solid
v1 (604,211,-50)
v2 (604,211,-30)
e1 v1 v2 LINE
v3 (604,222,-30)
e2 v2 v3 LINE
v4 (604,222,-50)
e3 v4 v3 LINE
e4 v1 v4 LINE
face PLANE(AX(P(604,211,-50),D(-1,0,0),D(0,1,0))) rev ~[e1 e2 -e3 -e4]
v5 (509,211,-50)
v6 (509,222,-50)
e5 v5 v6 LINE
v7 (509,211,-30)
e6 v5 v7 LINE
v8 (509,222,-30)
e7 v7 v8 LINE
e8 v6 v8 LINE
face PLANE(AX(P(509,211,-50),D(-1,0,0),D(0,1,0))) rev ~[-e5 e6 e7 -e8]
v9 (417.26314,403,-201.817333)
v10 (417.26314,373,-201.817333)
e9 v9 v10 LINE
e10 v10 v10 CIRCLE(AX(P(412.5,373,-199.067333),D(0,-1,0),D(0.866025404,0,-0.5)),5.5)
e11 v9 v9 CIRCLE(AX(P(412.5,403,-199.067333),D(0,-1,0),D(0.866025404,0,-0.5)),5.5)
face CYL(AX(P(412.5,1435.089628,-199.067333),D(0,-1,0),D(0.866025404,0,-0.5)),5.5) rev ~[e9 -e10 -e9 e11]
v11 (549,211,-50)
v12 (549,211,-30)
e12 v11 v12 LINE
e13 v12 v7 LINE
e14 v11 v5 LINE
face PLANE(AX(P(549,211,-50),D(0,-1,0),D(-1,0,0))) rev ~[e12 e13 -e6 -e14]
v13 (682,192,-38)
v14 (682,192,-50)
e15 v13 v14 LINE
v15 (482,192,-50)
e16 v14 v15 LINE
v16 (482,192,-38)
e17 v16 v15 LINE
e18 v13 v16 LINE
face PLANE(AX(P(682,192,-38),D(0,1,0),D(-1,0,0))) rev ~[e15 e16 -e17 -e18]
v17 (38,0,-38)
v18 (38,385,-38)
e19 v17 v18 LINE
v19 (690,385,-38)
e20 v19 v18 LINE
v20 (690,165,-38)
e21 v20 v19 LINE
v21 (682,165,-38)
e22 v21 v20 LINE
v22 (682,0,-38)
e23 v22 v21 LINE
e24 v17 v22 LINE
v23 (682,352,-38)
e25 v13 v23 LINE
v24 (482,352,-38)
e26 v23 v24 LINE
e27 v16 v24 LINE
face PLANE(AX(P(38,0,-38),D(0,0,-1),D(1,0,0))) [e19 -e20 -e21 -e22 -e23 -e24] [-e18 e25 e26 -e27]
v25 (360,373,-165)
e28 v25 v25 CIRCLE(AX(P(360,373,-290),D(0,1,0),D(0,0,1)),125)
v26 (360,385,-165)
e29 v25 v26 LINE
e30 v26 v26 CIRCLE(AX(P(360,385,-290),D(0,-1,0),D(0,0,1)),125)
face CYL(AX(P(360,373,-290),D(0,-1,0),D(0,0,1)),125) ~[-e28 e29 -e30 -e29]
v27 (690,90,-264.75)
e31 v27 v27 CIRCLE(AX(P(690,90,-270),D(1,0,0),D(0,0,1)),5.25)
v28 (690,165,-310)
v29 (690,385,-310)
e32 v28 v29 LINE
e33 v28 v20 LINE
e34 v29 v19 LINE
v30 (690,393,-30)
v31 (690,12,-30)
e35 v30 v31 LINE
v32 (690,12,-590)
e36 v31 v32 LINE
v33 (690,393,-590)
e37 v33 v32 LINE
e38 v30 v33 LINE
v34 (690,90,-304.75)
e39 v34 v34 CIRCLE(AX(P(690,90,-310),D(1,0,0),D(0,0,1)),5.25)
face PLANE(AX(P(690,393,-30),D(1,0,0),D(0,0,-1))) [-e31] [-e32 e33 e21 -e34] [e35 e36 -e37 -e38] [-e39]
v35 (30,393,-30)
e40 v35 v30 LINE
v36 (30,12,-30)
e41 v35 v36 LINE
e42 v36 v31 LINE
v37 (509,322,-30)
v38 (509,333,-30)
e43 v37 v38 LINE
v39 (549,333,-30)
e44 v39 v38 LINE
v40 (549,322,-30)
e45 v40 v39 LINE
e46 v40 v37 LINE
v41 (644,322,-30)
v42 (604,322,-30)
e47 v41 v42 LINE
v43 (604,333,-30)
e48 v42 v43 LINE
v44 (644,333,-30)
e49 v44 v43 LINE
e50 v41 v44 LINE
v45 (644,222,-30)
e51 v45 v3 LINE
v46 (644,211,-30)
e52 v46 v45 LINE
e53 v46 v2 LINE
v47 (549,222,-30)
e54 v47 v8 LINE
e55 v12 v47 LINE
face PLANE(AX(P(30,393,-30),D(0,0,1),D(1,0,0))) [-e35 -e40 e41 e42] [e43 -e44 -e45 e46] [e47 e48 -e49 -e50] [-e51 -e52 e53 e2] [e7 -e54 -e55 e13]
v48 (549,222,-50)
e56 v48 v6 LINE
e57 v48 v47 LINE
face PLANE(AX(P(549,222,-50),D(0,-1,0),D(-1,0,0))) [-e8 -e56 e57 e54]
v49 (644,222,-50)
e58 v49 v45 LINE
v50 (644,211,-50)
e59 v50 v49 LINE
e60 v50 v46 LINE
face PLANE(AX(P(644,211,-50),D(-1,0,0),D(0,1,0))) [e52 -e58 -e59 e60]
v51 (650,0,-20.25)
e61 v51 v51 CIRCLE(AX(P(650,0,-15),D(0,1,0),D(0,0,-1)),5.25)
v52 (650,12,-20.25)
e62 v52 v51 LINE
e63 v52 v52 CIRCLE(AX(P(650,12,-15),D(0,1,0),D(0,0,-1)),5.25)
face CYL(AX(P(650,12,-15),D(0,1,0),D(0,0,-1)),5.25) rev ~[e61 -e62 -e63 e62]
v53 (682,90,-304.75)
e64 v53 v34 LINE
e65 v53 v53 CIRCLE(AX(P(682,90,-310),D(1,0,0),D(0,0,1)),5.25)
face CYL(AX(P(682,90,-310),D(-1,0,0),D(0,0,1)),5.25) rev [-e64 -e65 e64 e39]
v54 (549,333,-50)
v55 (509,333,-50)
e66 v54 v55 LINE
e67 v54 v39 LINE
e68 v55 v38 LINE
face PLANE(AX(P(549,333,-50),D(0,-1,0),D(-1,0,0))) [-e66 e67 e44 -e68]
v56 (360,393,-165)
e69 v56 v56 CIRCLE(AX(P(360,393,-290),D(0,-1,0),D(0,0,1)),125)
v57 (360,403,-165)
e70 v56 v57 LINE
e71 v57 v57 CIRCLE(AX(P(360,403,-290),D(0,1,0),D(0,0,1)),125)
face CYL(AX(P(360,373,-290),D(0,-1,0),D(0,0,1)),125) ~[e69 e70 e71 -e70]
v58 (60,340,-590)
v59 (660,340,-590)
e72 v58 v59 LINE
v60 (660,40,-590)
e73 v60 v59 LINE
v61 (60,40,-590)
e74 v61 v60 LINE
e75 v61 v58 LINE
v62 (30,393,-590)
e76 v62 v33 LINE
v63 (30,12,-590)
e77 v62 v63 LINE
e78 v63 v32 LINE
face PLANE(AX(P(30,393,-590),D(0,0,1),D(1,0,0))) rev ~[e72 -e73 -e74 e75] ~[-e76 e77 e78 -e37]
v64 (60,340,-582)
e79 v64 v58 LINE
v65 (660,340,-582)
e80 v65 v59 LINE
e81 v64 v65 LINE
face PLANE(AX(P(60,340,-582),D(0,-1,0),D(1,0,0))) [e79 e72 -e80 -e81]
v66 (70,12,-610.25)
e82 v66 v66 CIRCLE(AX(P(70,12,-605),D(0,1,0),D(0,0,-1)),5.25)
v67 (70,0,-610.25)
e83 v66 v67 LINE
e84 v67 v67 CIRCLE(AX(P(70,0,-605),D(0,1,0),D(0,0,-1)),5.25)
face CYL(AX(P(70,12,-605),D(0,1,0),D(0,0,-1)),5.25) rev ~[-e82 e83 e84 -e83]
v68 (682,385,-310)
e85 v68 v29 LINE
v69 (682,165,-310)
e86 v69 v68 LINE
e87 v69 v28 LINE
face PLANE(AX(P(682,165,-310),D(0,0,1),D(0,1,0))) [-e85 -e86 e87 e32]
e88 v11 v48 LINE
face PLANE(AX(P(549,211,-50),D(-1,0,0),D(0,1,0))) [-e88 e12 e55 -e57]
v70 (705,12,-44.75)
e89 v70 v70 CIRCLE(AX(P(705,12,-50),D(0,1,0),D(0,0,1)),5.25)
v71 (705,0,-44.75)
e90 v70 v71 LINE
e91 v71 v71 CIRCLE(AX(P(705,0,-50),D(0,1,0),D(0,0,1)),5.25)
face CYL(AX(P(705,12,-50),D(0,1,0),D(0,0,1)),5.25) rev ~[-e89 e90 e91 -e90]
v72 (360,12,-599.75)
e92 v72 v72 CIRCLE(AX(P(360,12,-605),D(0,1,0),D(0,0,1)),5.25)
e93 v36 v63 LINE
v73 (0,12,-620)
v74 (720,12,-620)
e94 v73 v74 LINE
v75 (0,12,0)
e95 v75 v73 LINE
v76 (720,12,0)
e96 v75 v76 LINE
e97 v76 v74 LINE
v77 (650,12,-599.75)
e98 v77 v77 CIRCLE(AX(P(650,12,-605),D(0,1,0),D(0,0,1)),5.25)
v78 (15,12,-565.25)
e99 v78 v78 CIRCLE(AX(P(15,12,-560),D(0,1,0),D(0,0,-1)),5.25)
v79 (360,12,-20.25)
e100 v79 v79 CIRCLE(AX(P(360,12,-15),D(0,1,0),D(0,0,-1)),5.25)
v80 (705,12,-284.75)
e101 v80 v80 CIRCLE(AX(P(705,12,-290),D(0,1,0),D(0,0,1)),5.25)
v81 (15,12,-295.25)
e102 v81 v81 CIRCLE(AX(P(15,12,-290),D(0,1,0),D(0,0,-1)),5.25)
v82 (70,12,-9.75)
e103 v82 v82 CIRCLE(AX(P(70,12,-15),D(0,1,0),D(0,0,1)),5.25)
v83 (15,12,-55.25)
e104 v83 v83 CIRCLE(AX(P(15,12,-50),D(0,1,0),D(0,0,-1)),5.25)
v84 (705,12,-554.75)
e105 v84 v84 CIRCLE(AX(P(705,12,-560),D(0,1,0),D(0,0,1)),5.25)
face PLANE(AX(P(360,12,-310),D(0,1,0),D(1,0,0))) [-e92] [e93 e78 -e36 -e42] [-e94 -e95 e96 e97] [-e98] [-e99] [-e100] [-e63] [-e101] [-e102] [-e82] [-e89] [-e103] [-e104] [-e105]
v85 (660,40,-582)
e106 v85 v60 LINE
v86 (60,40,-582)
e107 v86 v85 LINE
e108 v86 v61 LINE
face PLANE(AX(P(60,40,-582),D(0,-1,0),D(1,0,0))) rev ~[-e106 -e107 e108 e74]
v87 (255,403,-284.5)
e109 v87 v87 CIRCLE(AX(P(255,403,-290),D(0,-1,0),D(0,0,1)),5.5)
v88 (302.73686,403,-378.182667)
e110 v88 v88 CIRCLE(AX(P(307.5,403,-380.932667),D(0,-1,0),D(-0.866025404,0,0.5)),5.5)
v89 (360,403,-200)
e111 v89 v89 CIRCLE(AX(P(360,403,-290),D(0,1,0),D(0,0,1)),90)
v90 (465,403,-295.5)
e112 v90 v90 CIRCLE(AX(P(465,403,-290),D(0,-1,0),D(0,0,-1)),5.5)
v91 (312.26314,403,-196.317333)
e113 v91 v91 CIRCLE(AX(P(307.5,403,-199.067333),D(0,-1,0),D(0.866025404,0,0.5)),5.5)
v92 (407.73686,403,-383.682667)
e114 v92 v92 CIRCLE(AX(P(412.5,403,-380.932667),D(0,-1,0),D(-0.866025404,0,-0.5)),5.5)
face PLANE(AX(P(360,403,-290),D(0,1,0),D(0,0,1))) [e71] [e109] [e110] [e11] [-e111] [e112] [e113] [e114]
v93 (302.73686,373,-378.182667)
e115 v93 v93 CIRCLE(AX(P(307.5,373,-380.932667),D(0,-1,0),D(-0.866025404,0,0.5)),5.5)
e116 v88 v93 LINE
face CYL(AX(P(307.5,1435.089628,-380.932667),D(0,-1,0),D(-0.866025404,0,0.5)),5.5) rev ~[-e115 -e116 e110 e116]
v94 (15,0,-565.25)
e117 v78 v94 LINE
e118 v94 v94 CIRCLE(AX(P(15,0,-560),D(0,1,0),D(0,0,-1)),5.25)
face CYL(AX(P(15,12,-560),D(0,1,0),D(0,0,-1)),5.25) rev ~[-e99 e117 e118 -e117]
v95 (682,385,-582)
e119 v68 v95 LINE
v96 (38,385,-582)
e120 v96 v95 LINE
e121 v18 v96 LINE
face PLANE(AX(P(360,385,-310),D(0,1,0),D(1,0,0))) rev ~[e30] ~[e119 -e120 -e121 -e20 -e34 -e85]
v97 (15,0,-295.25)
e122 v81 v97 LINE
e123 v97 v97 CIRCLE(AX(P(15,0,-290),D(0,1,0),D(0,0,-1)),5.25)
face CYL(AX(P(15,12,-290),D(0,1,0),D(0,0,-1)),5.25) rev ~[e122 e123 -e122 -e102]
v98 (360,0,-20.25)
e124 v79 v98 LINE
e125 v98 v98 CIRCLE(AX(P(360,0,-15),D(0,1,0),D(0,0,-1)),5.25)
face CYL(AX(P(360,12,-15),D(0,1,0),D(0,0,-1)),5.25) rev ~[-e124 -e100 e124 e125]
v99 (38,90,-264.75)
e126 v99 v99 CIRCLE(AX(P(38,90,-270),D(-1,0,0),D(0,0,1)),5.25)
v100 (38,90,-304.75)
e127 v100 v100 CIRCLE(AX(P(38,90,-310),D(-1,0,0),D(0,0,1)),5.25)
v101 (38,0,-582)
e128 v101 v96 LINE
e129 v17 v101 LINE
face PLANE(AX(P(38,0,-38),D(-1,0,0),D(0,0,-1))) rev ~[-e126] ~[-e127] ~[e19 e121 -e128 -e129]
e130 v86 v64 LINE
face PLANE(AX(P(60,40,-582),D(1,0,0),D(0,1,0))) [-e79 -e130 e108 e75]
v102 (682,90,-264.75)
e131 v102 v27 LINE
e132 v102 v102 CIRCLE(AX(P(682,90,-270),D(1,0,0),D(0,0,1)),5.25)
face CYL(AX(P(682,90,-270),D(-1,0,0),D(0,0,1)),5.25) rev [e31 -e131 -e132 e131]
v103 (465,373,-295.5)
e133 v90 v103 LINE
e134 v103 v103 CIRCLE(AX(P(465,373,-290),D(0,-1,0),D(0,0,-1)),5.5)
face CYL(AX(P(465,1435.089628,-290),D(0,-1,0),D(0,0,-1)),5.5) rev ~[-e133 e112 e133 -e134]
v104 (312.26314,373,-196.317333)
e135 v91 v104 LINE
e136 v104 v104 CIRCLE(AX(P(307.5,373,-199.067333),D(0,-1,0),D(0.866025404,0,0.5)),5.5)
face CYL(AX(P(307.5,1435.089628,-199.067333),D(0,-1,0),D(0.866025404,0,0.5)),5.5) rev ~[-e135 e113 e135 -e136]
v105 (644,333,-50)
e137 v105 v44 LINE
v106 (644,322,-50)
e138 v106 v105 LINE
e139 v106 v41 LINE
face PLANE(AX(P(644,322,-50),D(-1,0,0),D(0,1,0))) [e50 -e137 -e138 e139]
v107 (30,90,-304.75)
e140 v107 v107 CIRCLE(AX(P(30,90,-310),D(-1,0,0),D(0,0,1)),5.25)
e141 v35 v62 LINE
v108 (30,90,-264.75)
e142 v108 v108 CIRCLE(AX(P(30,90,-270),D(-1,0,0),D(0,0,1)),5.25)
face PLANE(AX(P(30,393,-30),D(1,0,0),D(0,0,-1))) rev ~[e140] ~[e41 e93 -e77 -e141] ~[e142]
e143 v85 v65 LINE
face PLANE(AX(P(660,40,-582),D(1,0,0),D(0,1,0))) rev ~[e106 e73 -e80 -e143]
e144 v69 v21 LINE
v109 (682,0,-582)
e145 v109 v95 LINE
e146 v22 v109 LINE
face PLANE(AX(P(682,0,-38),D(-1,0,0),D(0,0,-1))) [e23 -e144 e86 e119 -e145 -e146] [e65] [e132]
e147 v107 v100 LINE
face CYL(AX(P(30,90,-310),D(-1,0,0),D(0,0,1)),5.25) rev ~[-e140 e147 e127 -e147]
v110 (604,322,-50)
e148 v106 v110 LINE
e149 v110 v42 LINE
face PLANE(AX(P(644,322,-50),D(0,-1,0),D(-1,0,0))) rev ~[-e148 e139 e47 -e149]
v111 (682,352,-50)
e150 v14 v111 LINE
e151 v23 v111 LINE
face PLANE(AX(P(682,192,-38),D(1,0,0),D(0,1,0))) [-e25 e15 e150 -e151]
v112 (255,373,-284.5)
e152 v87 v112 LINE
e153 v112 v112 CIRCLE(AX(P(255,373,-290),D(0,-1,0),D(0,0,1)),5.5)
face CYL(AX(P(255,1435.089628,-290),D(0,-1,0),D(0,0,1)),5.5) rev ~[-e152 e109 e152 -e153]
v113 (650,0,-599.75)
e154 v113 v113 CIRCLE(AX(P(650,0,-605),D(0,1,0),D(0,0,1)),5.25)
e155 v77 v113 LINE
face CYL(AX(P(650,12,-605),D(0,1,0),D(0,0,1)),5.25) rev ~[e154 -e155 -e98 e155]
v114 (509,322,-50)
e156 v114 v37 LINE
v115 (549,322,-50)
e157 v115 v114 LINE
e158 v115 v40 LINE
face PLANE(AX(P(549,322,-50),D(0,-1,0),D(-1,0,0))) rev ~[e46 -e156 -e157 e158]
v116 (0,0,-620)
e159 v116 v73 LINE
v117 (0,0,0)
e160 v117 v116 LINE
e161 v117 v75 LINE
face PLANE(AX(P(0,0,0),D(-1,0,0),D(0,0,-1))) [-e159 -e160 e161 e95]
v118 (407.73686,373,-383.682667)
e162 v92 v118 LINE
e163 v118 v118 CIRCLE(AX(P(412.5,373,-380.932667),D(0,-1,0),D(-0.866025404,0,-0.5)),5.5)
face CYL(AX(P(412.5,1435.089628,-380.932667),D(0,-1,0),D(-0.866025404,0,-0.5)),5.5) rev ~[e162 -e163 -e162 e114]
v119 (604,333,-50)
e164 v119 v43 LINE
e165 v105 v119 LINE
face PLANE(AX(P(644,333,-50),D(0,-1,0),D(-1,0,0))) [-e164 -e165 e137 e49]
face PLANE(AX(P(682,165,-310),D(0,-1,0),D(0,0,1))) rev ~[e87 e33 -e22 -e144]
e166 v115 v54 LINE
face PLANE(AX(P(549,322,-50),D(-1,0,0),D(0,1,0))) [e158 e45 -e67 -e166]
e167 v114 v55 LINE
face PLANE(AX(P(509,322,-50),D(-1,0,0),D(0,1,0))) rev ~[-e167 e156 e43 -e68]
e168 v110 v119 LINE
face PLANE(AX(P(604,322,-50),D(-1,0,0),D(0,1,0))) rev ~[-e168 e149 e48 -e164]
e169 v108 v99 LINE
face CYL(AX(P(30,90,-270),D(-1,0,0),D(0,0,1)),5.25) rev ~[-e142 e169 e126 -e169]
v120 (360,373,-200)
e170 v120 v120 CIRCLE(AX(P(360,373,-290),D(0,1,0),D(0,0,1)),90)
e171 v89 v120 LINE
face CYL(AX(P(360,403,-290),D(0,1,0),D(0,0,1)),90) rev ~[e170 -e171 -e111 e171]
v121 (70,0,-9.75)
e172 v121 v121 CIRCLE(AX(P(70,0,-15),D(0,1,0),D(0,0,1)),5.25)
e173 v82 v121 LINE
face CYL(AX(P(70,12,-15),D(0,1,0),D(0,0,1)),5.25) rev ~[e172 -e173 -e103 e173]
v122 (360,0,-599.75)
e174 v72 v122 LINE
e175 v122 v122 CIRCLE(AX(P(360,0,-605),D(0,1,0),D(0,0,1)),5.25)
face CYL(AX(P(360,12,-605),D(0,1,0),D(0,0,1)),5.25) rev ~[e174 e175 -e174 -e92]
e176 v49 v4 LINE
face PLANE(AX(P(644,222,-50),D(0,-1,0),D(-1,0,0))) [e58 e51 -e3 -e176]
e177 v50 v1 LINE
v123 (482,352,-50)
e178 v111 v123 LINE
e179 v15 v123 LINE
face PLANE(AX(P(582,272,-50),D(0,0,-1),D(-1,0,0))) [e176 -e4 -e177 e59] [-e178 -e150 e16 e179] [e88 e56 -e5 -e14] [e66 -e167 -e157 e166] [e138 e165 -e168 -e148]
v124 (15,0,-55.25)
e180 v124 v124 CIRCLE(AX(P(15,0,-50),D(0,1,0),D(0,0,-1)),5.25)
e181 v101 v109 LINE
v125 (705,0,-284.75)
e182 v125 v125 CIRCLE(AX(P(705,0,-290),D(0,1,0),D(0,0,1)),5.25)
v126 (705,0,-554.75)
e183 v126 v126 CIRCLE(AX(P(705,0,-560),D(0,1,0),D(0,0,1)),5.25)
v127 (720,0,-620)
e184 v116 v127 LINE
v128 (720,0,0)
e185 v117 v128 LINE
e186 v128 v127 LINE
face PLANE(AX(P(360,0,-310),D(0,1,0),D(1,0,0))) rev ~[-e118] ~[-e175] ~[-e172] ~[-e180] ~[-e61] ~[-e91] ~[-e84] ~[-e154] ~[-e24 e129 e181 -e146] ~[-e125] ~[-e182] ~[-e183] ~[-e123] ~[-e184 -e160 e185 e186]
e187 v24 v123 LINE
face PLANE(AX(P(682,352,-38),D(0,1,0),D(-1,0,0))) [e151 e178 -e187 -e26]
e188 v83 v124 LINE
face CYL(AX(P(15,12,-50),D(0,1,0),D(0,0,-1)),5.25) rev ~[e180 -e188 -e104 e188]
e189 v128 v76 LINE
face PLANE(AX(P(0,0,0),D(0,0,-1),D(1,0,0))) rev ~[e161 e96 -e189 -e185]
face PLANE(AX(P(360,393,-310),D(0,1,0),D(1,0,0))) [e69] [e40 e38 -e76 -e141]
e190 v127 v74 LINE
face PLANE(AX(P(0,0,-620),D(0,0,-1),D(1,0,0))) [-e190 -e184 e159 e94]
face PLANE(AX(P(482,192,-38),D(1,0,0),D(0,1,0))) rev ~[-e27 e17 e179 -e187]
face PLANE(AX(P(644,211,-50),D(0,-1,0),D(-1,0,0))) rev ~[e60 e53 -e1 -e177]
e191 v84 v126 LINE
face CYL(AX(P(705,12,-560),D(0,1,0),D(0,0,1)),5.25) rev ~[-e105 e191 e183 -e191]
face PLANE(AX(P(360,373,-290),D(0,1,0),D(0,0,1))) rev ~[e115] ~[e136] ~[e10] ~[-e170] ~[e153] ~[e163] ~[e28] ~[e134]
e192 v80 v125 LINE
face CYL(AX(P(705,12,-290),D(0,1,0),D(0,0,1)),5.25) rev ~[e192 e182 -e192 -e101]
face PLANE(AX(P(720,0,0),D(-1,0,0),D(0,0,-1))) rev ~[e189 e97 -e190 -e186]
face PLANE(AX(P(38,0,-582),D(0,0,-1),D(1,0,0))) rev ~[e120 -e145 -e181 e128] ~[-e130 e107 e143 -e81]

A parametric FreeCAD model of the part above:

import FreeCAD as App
import Part
import Sketcher
from FreeCAD import Vector

doc = App.newDocument("Part")
body = doc.addObject("PartDesign::Body", "Body")

# Sketch on XZ plane
sketch1 = body.newObject("Sketcher::SketchObject", "Sketch")
sketch1.AttachmentSupport = (doc.getObject("XZ_Plane"), [""])
sketch1.MapMode = "FlatFace"
sketch1.addGeometry(Part.LineSegment(Vector(0, -620, 0), Vector(0, 0, 0)), False)
sketch1.addGeometry(Part.LineSegment(Vector(0, 0, 0), Vector(720, 0, 0)), False)
sketch1.addGeometry(Part.LineSegment(Vector(720, 0, 0), Vector(720, -620, 0)), False)
sketch1.addGeometry(Part.LineSegment(Vector(720, -620, 0), Vector(0, -620, 0)), False)
sketch1.addConstraint(Sketcher.Constraint("Coincident", 0, 2, 1, 1))
sketch1.addConstraint(Sketcher.Constraint("Coincident", 1, 2, 2, 1))
sketch1.addConstraint(Sketcher.Constraint("Coincident", 2, 2, 3, 1))
sketch1.addConstraint(Sketcher.Constraint("Coincident", 3, 2, 0, 1))
sketch1.addConstraint(Sketcher.Constraint("Vertical", 0))
sketch1.addConstraint(Sketcher.Constraint("Horizontal", 1))
sketch1.addConstraint(Sketcher.Constraint("Vertical", 2))
sketch1.addConstraint(Sketcher.Constraint("Horizontal", 3))
sketch1.addConstraint(Sketcher.Constraint("Coincident", 0, 2, -1, 1))
sketch1.addConstraint(Sketcher.Constraint("DistanceX", 1, 1, 1, 2, 720.0))
sketch1.addConstraint(Sketcher.Constraint("DistanceY", 0, 1, 0, 2, 620.0))
pad1 = body.newObject("PartDesign::Pad", "Pad")
pad1.Profile = sketch1
pad1.Length = 393
pad1.Reversed = True

# Sketch on XZ plane
sketch2 = body.newObject("Sketcher::SketchObject", "Sketch001")
sketch2.AttachmentSupport = (doc.getObject("XZ_Plane"), [""])
sketch2.MapMode = "FlatFace"
sketch2.AttachmentOffset = App.Placement(Vector(0, 0, -393), App.Rotation())
sketch2.addGeometry(Part.LineSegment(Vector(0, -620, 0), Vector(0, 0, 0)), False)
sketch2.addGeometry(Part.LineSegment(Vector(0, 0, 0), Vector(720, 0, 0)), False)
sketch2.addGeometry(Part.LineSegment(Vector(720, 0, 0), Vector(720, -620, 0)), False)
sketch2.addGeometry(Part.LineSegment(Vector(720, -620, 0), Vector(0, -620, 0)), False)
sketch2.addGeometry(Part.LineSegment(Vector(690, -30, 0), Vector(30, -30, 0)), False)
sketch2.addGeometry(Part.LineSegment(Vector(30, -30, 0), Vector(30, -590, 0)), False)
sketch2.addGeometry(Part.LineSegment(Vector(30, -590, 0), Vector(690, -590, 0)), False)
sketch2.addGeometry(Part.LineSegment(Vector(690, -590, 0), Vector(690, -30, 0)), False)
sketch2.addConstraint(Sketcher.Constraint("Coincident", 0, 2, 1, 1))
sketch2.addConstraint(Sketcher.Constraint("Coincident", 1, 2, 2, 1))
sketch2.addConstraint(Sketcher.Constraint("Coincident", 2, 2, 3, 1))
sketch2.addConstraint(Sketcher.Constraint("Coincident", 3, 2, 0, 1))
sketch2.addConstraint(Sketcher.Constraint("Coincident", 4, 2, 5, 1))
sketch2.addConstraint(Sketcher.Constraint("Coincident", 5, 2, 6, 1))
sketch2.addConstraint(Sketcher.Constraint("Coincident", 6, 2, 7, 1))
sketch2.addConstraint(Sketcher.Constraint("Coincident", 7, 2, 4, 1))
sketch2.addConstraint(Sketcher.Constraint("Vertical", 0))
sketch2.addConstraint(Sketcher.Constraint("Horizontal", 1))
sketch2.addConstraint(Sketcher.Constraint("Vertical", 2))
sketch2.addConstraint(Sketcher.Constraint("Horizontal", 3))
sketch2.addConstraint(Sketcher.Constraint("Horizontal", 4))
sketch2.addConstraint(Sketcher.Constraint("Vertical", 5))
sketch2.addConstraint(Sketcher.Constraint("Horizontal", 6))
sketch2.addConstraint(Sketcher.Constraint("Vertical", 7))
sketch2.addConstraint(Sketcher.Constraint("Coincident", 0, 2, -1, 1))
sketch2.addConstraint(Sketcher.Constraint("DistanceX", 1, 1, 1, 2, 720.0))
sketch2.addConstraint(Sketcher.Constraint("DistanceX", 4, 2, 4, 1, 660.0))
sketch2.addConstraint(Sketcher.Constraint("DistanceY", 0, 1, 0, 2, 620.0))
sketch2.addConstraint(Sketcher.Constraint("DistanceY", 5, 2, 5, 1, 560.0))
sketch2.addConstraint(Sketcher.Constraint("DistanceX", -1, 1, 4, 2, 30.0))
sketch2.addConstraint(Sketcher.Constraint("DistanceY", 4, 2, -1, 1, 30.0))
pocket1 = body.newObject("PartDesign::Pocket", "Pocket")
pocket1.Profile = sketch2
pocket1.Length = 381
pocket1.Reversed = True

# Sketch on XZ plane
sketch3 = body.newObject("Sketcher::SketchObject", "Sketch002")
sketch3.AttachmentSupport = (doc.getObject("XZ_Plane"), [""])
sketch3.MapMode = "FlatFace"
sketch3.AttachmentOffset = App.Placement(Vector(0, 0, -12), App.Rotation())
sketch3.addGeometry(Part.Circle(Vector(360, -605, 0), Vector(0, 0, 1), 5), False)
sketch3.addGeometry(Part.Circle(Vector(650, -605, 0), Vector(0, 0, 1), 5), False)
sketch3.addGeometry(Part.Circle(Vector(70, -605, 0), Vector(0, 0, 1), 5), False)
sketch3.addGeometry(Part.Circle(Vector(650, -15, 0), Vector(0, 0, 1), 5), False)
sketch3.addGeometry(Part.Circle(Vector(360, -15, 0), Vector(0, 0, 1), 5), False)
sketch3.addGeometry(Part.Circle(Vector(70, -15, 0), Vector(0, 0, 1), 5), False)
sketch3.addGeometry(Part.Circle(Vector(705, -560, 0), Vector(0, 0, 1), 5), False)
sketch3.addGeometry(Part.Circle(Vector(705, -290, 0), Vector(0, 0, 1), 5), False)
sketch3.addGeometry(Part.Circle(Vector(705, -50, 0), Vector(0, 0, 1), 5), False)
sketch3.addGeometry(Part.Circle(Vector(15, -50, 0), Vector(0, 0, 1), 5), False)
sketch3.addGeometry(Part.Circle(Vector(15, -290, 0), Vector(0, 0, 1), 5), False)
sketch3.addGeometry(Part.Circle(Vector(15, -560, 0), Vector(0, 0, 1), 5), False)
sketch3.addConstraint(Sketcher.Constraint("Equal", 0, 1))
sketch3.addConstraint(Sketcher.Constraint("Equal", 1, 2))
sketch3.addConstraint(Sketcher.Constraint("Equal", 2, 3))
sketch3.addConstraint(Sketcher.Constraint("Equal", 3, 4))
sketch3.addConstraint(Sketcher.Constraint("Equal", 4, 5))
sketch3.addConstraint(Sketcher.Constraint("Equal", 5, 6))
sketch3.addConstraint(Sketcher.Constraint("Equal", 6, 7))
sketch3.addConstraint(Sketcher.Constraint("Equal", 7, 8))
sketch3.addConstraint(Sketcher.Constraint("Equal", 8, 9))
sketch3.addConstraint(Sketcher.Constraint("Equal", 9, 10))
sketch3.addConstraint(Sketcher.Constraint("Equal", 10, 11))
sketch3.addConstraint(Sketcher.Constraint("Horizontal", 0, 3, 1, 3))
sketch3.addConstraint(Sketcher.Constraint("Horizontal", 1, 3, 2, 3))
sketch3.addConstraint(Sketcher.Constraint("Horizontal", 3, 3, 4, 3))
sketch3.addConstraint(Sketcher.Constraint("Horizontal", 4, 3, 5, 3))
sketch3.addConstraint(Sketcher.Constraint("Horizontal", 8, 3, 9, 3))
sketch3.addConstraint(Sketcher.Constraint("Horizontal", 7, 3, 10, 3))
sketch3.addConstraint(Sketcher.Constraint("Horizontal", 6, 3, 11, 3))
sketch3.addConstraint(Sketcher.Constraint("Vertical", 1, 3, 3, 3))
sketch3.addConstraint(Sketcher.Constraint("Vertical", 0, 3, 4, 3))
sketch3.addConstraint(Sketcher.Constraint("Vertical", 2, 3, 5, 3))
sketch3.addConstraint(Sketcher.Constraint("Vertical", 6, 3, 7, 3))
sketch3.addConstraint(Sketcher.Constraint("Vertical", 7, 3, 8, 3))
sketch3.addConstraint(Sketcher.Constraint("Vertical", 9, 3, 10, 3))
sketch3.addConstraint(Sketcher.Constraint("Vertical", 10, 3, 11, 3))
sketch3.addConstraint(Sketcher.Constraint("Diameter", 0, 10.5))
sketch3.addConstraint(Sketcher.Constraint("DistanceX", -1, 1, 0, 3, 360.0))
sketch3.addConstraint(Sketcher.Constraint("DistanceY", 0, 3, -1, 1, 605.0))
sketch3.addConstraint(Sketcher.Constraint("DistanceX", -1, 1, 1, 3, 650.0))
sketch3.addConstraint(Sketcher.Constraint("DistanceX", -1, 1, 2, 3, 70.0))
sketch3.addConstraint(Sketcher.Constraint("DistanceY", 3, 3, -1, 1, 15.0))
sketch3.addConstraint(Sketcher.Constraint("DistanceX", -1, 1, 6, 3, 705.0))
sketch3.addConstraint(Sketcher.Constraint("DistanceY", 6, 3, -1, 1, 560.0))
sketch3.addConstraint(Sketcher.Constraint("DistanceY", 7, 3, -1, 1, 290.0))
sketch3.addConstraint(Sketcher.Constraint("DistanceY", 8, 3, -1, 1, 50.0))
sketch3.addConstraint(Sketcher.Constraint("DistanceX", -1, 1, 9, 3, 15.0))
pocket2 = body.newObject("PartDesign::Pocket", "Pocket001")
pocket2.Profile = sketch3
pocket2.Length = 12
pocket2.Reversed = True

# Sketch on XZ plane
sketch4 = body.newObject("Sketcher::SketchObject", "Sketch003")
sketch4.AttachmentSupport = (doc.getObject("XZ_Plane"), [""])
sketch4.MapMode = "FlatFace"
sketch4.addGeometry(Part.LineSegment(Vector(38, -582, 0), Vector(38, -38, 0)), False)
sketch4.addGeometry(Part.LineSegment(Vector(38, -38, 0), Vector(682, -38, 0)), False)
sketch4.addGeometry(Part.LineSegment(Vector(682, -38, 0), Vector(682, -582, 0)), False)
sketch4.addGeometry(Part.LineSegment(Vector(682, -582, 0), Vector(38, -582, 0)), False)
sketch4.addConstraint(Sketcher.Constraint("Coincident", 0, 2, 1, 1))
sketch4.addConstraint(Sketcher.Constraint("Coincident", 1, 2, 2, 1))
sketch4.addConstraint(Sketcher.Constraint("Coincident", 2, 2, 3, 1))
sketch4.addConstraint(Sketcher.Constraint("Coincident", 3, 2, 0, 1))
sketch4.addConstraint(Sketcher.Constraint("Vertical", 0))
sketch4.addConstraint(Sketcher.Constraint("Horizontal", 1))
sketch4.addConstraint(Sketcher.Constraint("Vertical", 2))
sketch4.addConstraint(Sketcher.Constraint("Horizontal", 3))
sketch4.addConstraint(Sketcher.Constraint("DistanceX", 1, 1, 1, 2, 644.0))
sketch4.addConstraint(Sketcher.Constraint("DistanceY", 0, 1, 0, 2, 544.0))
sketch4.addConstraint(Sketcher.Constraint("DistanceX", -1, 1, 0, 2, 38.0))
sketch4.addConstraint(Sketcher.Constraint("DistanceY", 0, 2, -1, 1, 38.0))
pocket3 = body.newObject("PartDesign::Pocket", "Pocket002")
pocket3.Profile = sketch4
pocket3.Length = 385

# Sketch on XZ plane
sketch5 = body.newObject("Sketcher::SketchObject", "Sketch004")
sketch5.AttachmentSupport = (doc.getObject("XZ_Plane"), [""])
sketch5.MapMode = "FlatFace"
sketch5.AttachmentOffset = App.Placement(Vector(0, 0, -393), App.Rotation())
sketch5.addGeometry(Part.Circle(Vector(360, -290, 0), Vector(0, 0, 1), 125), False)
sketch5.addConstraint(Sketcher.Constraint("Diameter", 0, 250.0))
sketch5.addConstraint(Sketcher.Constraint("DistanceX", -1, 1, 0, 3, 360.0))
sketch5.addConstraint(Sketcher.Constraint("DistanceY", 0, 3, -1, 1, 290.0))
pad2 = body.newObject("PartDesign::Pad", "Pad001")
pad2.Profile = sketch5
pad2.Type = "TwoLengths"
pad2.Length = 10
pad2.Length2 = 20
pad2.Reversed = True

# Sketch on XZ plane
sketch6 = body.newObject("Sketcher::SketchObject", "Sketch005")
sketch6.AttachmentSupport = (doc.getObject("XZ_Plane"), [""])
sketch6.MapMode = "FlatFace"
sketch6.AttachmentOffset = App.Placement(Vector(0, 0, -403), App.Rotation())
sketch6.addGeometry(Part.Circle(Vector(360, -290, 0), Vector(0, 0, 1), 90), False)
sketch6.addConstraint(Sketcher.Constraint("Diameter", 0, 180.0))
sketch6.addConstraint(Sketcher.Constraint("DistanceX", -1, 1, 0, 3, 360.0))
sketch6.addConstraint(Sketcher.Constraint("DistanceY", 0, 3, -1, 1, 290.0))
pocket4 = body.newObject("PartDesign::Pocket", "Pocket003")
pocket4.Profile = sketch6
pocket4.Length = 30
pocket4.Reversed = True

# Sketch on XZ plane
sketch7 = body.newObject("Sketcher::SketchObject", "Sketch006")
sketch7.AttachmentSupport = (doc.getObject("XZ_Plane"), [""])
sketch7.MapMode = "FlatFace"
sketch7.AttachmentOffset = App.Placement(Vector(0, 0, -403), App.Rotation())
sketch7.addGeometry(Part.Circle(Vector(465, -290, 0), Vector(0, 0, 1), 6), False)
sketch7.addConstraint(Sketcher.Constraint("Diameter", 0, 11.0))
sketch7.addConstraint(Sketcher.Constraint("DistanceX", -1, 1, 0, 3, 465.0))
sketch7.addConstraint(Sketcher.Constraint("DistanceY", 0, 3, -1, 1, 290.0))
doc.recompute()
hole = body.newObject("PartDesign::Hole", "Hole")
hole.Profile = sketch7
hole.ThreadType = "None"
hole.Diameter = 11
hole.DepthType = "ThroughAll"
hole.Reversed = True
doc.recompute()

datumline = body.newObject("PartDesign::Line", "DatumLine")
datumline.Placement = App.Placement(Vector(360, 0, -290), App.Rotation(Vector(0, 0, 1), Vector(0, 1, 0)))
polarpattern = body.newObject("PartDesign::PolarPattern", "PolarPattern")
polarpattern.Originals = [hole]
polarpattern.Axis = (datumline, [""])
polarpattern.Angle = 360
polarpattern.Occurrences = 6
body.Tip = polarpattern

# Sketch on XY plane
sketch8 = body.newObject("Sketcher::SketchObject", "Sketch007")
sketch8.AttachmentSupport = (doc.getObject("XY_Plane"), [""])
sketch8.MapMode = "FlatFace"
sketch8.AttachmentOffset = App.Placement(Vector(0, 0, -582), App.Rotation())
sketch8.addGeometry(Part.LineSegment(Vector(60, 340, 0), Vector(60, 40, 0)), False)
sketch8.addGeometry(Part.LineSegment(Vector(60, 40, 0), Vector(660, 40, 0)), False)
sketch8.addGeometry(Part.LineSegment(Vector(660, 40, 0), Vector(660, 340, 0)), False)
sketch8.addGeometry(Part.LineSegment(Vector(660, 340, 0), Vector(60, 340, 0)), False)
sketch8.addConstraint(Sketcher.Constraint("Coincident", 0, 2, 1, 1))
sketch8.addConstraint(Sketcher.Constraint("Coincident", 1, 2, 2, 1))
sketch8.addConstraint(Sketcher.Constraint("Coincident", 2, 2, 3, 1))
sketch8.addConstraint(Sketcher.Constraint("Coincident", 3, 2, 0, 1))
sketch8.addConstraint(Sketcher.Constraint("Vertical", 0))
sketch8.addConstraint(Sketcher.Constraint("Horizontal", 1))
sketch8.addConstraint(Sketcher.Constraint("Vertical", 2))
sketch8.addConstraint(Sketcher.Constraint("Horizontal", 3))
sketch8.addConstraint(Sketcher.Constraint("DistanceX", 1, 1, 1, 2, 600.0))
sketch8.addConstraint(Sketcher.Constraint("DistanceY", 0, 2, 0, 1, 300.0))
sketch8.addConstraint(Sketcher.Constraint("DistanceX", -1, 1, 0, 2, 60.0))
sketch8.addConstraint(Sketcher.Constraint("DistanceY", -1, 1, 0, 2, 40.0))
pocket5 = body.newObject("PartDesign::Pocket", "Pocket004")
pocket5.Profile = sketch8
pocket5.Length = 8

# Sketch on YZ plane
sketch9 = body.newObject("Sketcher::SketchObject", "Sketch008")
sketch9.AttachmentSupport = (doc.getObject("YZ_Plane"), [""])
sketch9.MapMode = "FlatFace"
sketch9.AttachmentOffset = App.Placement(Vector(0, 0, 30), App.Rotation())
sketch9.addGeometry(Part.Circle(Vector(90, -310, 0), Vector(0, 0, 1), 5), False)
sketch9.addGeometry(Part.Circle(Vector(90, -270, 0), Vector(0, 0, 1), 5), False)
sketch9.addConstraint(Sketcher.Constraint("Equal", 0, 1))
sketch9.addConstraint(Sketcher.Constraint("Vertical", 0, 3, 1, 3))
sketch9.addConstraint(Sketcher.Constraint("Diameter", 0, 10.5))
sketch9.addConstraint(Sketcher.Constraint("DistanceX", -1, 1, 0, 3, 90.0))
sketch9.addConstraint(Sketcher.Constraint("DistanceY", 0, 3, -1, 1, 310.0))
sketch9.addConstraint(Sketcher.Constraint("DistanceY", 1, 3, -1, 1, 270.0))
pocket6 = body.newObject("PartDesign::Pocket", "Pocket005")
pocket6.Profile = sketch9
pocket6.Length = 8
pocket6.Reversed = True

# Sketch on YZ plane
sketch10 = body.newObject("Sketcher::SketchObject", "Sketch009")
sketch10.AttachmentSupport = (doc.getObject("YZ_Plane"), [""])
sketch10.MapMode = "FlatFace"
sketch10.AttachmentOffset = App.Placement(Vector(0, 0, 682), App.Rotation())
sketch10.addGeometry(Part.Circle(Vector(90, -310, 0), Vector(0, 0, 1), 5), False)
sketch10.addGeometry(Part.Circle(Vector(90, -270, 0), Vector(0, 0, 1), 5), False)
sketch10.addConstraint(Sketcher.Constraint("Equal", 0, 1))
sketch10.addConstraint(Sketcher.Constraint("Vertical", 0, 3, 1, 3))
sketch10.addConstraint(Sketcher.Constraint("Diameter", 0, 10.5))
sketch10.addConstraint(Sketcher.Constraint("DistanceX", -1, 1, 0, 3, 90.0))
sketch10.addConstraint(Sketcher.Constraint("DistanceY", 0, 3, -1, 1, 310.0))
sketch10.addConstraint(Sketcher.Constraint("DistanceY", 1, 3, -1, 1, 270.0))
pocket7 = body.newObject("PartDesign::Pocket", "Pocket006")
pocket7.Profile = sketch10
pocket7.Length = 8
pocket7.Reversed = True

# Sketch on YZ plane
sketch11 = body.newObject("Sketcher::SketchObject", "Sketch010")
sketch11.AttachmentSupport = (doc.getObject("YZ_Plane"), [""])
sketch11.MapMode = "FlatFace"
sketch11.AttachmentOffset = App.Placement(Vector(0, 0, 682), App.Rotation())
sketch11.addGeometry(Part.LineSegment(Vector(385, -310, 0), Vector(165, -310, 0)), False)
sketch11.addGeometry(Part.LineSegment(Vector(165, -310, 0), Vector(165, -38, 0)), False)
sketch11.addGeometry(Part.LineSegment(Vector(165, -38, 0), Vector(385, -38, 0)), False)
sketch11.addGeometry(Part.LineSegment(Vector(385, -38, 0), Vector(385, -310, 0)), False)
sketch11.addConstraint(Sketcher.Constraint("Coincident", 0, 2, 1, 1))
sketch11.addConstraint(Sketcher.Constraint("Coincident", 1, 2, 2, 1))
sketch11.addConstraint(Sketcher.Constraint("Coincident", 2, 2, 3, 1))
sketch11.addConstraint(Sketcher.Constraint("Coincident", 3, 2, 0, 1))
sketch11.addConstraint(Sketcher.Constraint("Horizontal", 0))
sketch11.addConstraint(Sketcher.Constraint("Vertical", 1))
sketch11.addConstraint(Sketcher.Constraint("Horizontal", 2))
sketch11.addConstraint(Sketcher.Constraint("Vertical", 3))
sketch11.addConstraint(Sketcher.Constraint("DistanceX", 0, 2, 0, 1, 220.0))
sketch11.addConstraint(Sketcher.Constraint("DistanceY", 1, 1, 1, 2, 272.0))
sketch11.addConstraint(Sketcher.Constraint("DistanceX", -1, 1, 0, 2, 165.0))
sketch11.addConstraint(Sketcher.Constraint("DistanceY", 0, 2, -1, 1, 310.0))
pocket8 = body.newObject("PartDesign::Pocket", "Pocket007")
pocket8.Profile = sketch11
pocket8.Length = 8
pocket8.Reversed = True

# Sketch on XY plane
sketch12 = body.newObject("Sketcher::SketchObject", "Sketch011")
sketch12.AttachmentSupport = (doc.getObject("XY_Plane"), [""])
sketch12.MapMode = "FlatFace"
sketch12.AttachmentOffset = App.Placement(Vector(0, 0, -38), App.Rotation())
sketch12.addGeometry(Part.LineSegment(Vector(682, 352, 0), Vector(682, 192, 0)), False)
sketch12.addGeometry(Part.LineSegment(Vector(682, 192, 0), Vector(482, 192, 0)), False)
sketch12.addGeometry(Part.LineSegment(Vector(482, 192, 0), Vector(482, 352, 0)), False)
sketch12.addGeometry(Part.LineSegment(Vector(482, 352, 0), Vector(682, 352, 0)), False)
sketch12.addConstraint(Sketcher.Constraint("Coincident", 0, 2, 1, 1))
sketch12.addConstraint(Sketcher.Constraint("Coincident", 1, 2, 2, 1))
sketch12.addConstraint(Sketcher.Constraint("Coincident", 2, 2, 3, 1))
sketch12.addConstraint(Sketcher.Constraint("Coincident", 3, 2, 0, 1))
sketch12.addConstraint(Sketcher.Constraint("Vertical", 0))
sketch12.addConstraint(Sketcher.Constraint("Horizontal", 1))
sketch12.addConstraint(Sketcher.Constraint("Vertical", 2))
sketch12.addConstraint(Sketcher.Constraint("Horizontal", 3))
sketch12.addConstraint(Sketcher.Constraint("DistanceX", 1, 2, 1, 1, 200.0))
sketch12.addConstraint(Sketcher.Constraint("DistanceY", 0, 2, 0, 1, 160.0))
sketch12.addConstraint(Sketcher.Constraint("DistanceX", -1, 1, 0, 2, 682.0))
sketch12.addConstraint(Sketcher.Constraint("DistanceY", -1, 1, 0, 2, 192.0))
pad3 = body.newObject("PartDesign::Pad", "Pad002")
pad3.Profile = sketch12
pad3.Length = 12
pad3.Reversed = True

# Sketch on XY plane
sketch13 = body.newObject("Sketcher::SketchObject", "Sketch012")
sketch13.AttachmentSupport = (doc.getObject("XY_Plane"), [""])
sketch13.MapMode = "FlatFace"
sketch13.AttachmentOffset = App.Placement(Vector(0, 0, -50), App.Rotation())
sketch13.addGeometry(Part.LineSegment(Vector(644, 222, 0), Vector(644, 211, 0)), False)
sketch13.addGeometry(Part.LineSegment(Vector(644, 211, 0), Vector(604, 211, 0)), False)
sketch13.addGeometry(Part.LineSegment(Vector(604, 211, 0), Vector(604, 222, 0)), False)
sketch13.addGeometry(Part.LineSegment(Vector(604, 222, 0), Vector(644, 222, 0)), False)
sketch13.addGeometry(Part.LineSegment(Vector(549, 222, 0), Vector(549, 211, 0)), False)
sketch13.addGeometry(Part.LineSegment(Vector(549, 211, 0), Vector(509, 211, 0)), False)
sketch13.addGeometry(Part.LineSegment(Vector(509, 211, 0), Vector(509, 222, 0)), False)
sketch13.addGeometry(Part.LineSegment(Vector(509, 222, 0), Vector(549, 222, 0)), False)
sketch13.addGeometry(Part.LineSegment(Vector(549, 333, 0), Vector(549, 322, 0)), False)
sketch13.addGeometry(Part.LineSegment(Vector(549, 322, 0), Vector(509, 322, 0)), False)
sketch13.addGeometry(Part.LineSegment(Vector(509, 322, 0), Vector(509, 333, 0)), False)
sketch13.addGeometry(Part.LineSegment(Vector(509, 333, 0), Vector(549, 333, 0)), False)
sketch13.addGeometry(Part.LineSegment(Vector(644, 333, 0), Vector(644, 322, 0)), False)
sketch13.addGeometry(Part.LineSegment(Vector(644, 322, 0), Vector(604, 322, 0)), False)
sketch13.addGeometry(Part.LineSegment(Vector(604, 322, 0), Vector(604, 333, 0)), False)
sketch13.addGeometry(Part.LineSegment(Vector(604, 333, 0), Vector(644, 333, 0)), False)
sketch13.addConstraint(Sketcher.Constraint("Coincident", 0, 2, 1, 1))
sketch13.addConstraint(Sketcher.Constraint("Coincident", 1, 2, 2, 1))
sketch13.addConstraint(Sketcher.Constraint("Coincident", 2, 2, 3, 1))
sketch13.addConstraint(Sketcher.Constraint("Coincident", 3, 2, 0, 1))
sketch13.addConstraint(Sketcher.Constraint("Coincident", 4, 2, 5, 1))
sketch13.addConstraint(Sketcher.Constraint("Coincident", 5, 2, 6, 1))
sketch13.addConstraint(Sketcher.Constraint("Coincident", 6, 2, 7, 1))
sketch13.addConstraint(Sketcher.Constraint("Coincident", 7, 2, 4, 1))
sketch13.addConstraint(Sketcher.Constraint("Coincident", 8, 2, 9, 1))
sketch13.addConstraint(Sketcher.Constraint("Coincident", 9, 2, 10, 1))
sketch13.addConstraint(Sketcher.Constraint("Coincident", 10, 2, 11, 1))
sketch13.addConstraint(Sketcher.Constraint("Coincident", 11, 2, 8, 1))
sketch13.addConstraint(Sketcher.Constraint("Coincident", 12, 2, 13, 1))
sketch13.addConstraint(Sketcher.Constraint("Coincident", 13, 2, 14, 1))
sketch13.addConstraint(Sketcher.Constraint("Coincident", 14, 2, 15, 1))
sketch13.addConstraint(Sketcher.Constraint("Coincident", 15, 2, 12, 1))
sketch13.addConstraint(Sketcher.Constraint("Vertical", 0))
sketch13.addConstraint(Sketcher.Constraint("Horizontal", 1))
sketch13.addConstraint(Sketcher.Constraint("Vertical", 2))
sketch13.addConstraint(Sketcher.Constraint("Horizontal", 3))
sketch13.addConstraint(Sketcher.Constraint("Vertical", 4))
sketch13.addConstraint(Sketcher.Constraint("Horizontal", 5))
sketch13.addConstraint(Sketcher.Constraint("Vertical", 6))
sketch13.addConstraint(Sketcher.Constraint("Horizontal", 7))
sketch13.addConstraint(Sketcher.Constraint("Vertical", 8))
sketch13.addConstraint(Sketcher.Constraint("Horizontal", 9))
sketch13.addConstraint(Sketcher.Constraint("Vertical", 10))
sketch13.addConstraint(Sketcher.Constraint("Horizontal", 11))
sketch13.addConstraint(Sketcher.Constraint("Vertical", 12))
sketch13.addConstraint(Sketcher.Constraint("Horizontal", 13))
sketch13.addConstraint(Sketcher.Constraint("Vertical", 14))
sketch13.addConstraint(Sketcher.Constraint("Horizontal", 15))
sketch13.addConstraint(Sketcher.Constraint("Horizontal", 1, 2, 4, 2))
sketch13.addConstraint(Sketcher.Constraint("Horizontal", 3, 2, 6, 2))
sketch13.addConstraint(Sketcher.Constraint("Horizontal", 9, 2, 12, 2))
sketch13.addConstraint(Sketcher.Constraint("Horizontal", 11, 2, 14, 2))
sketch13.addConstraint(Sketcher.Constraint("Vertical", 7, 2, 8, 2))
sketch13.addConstraint(Sketcher.Constraint("Vertical", 6, 2, 9, 2))
sketch13.addConstraint(Sketcher.Constraint("Vertical", 3, 2, 12, 2))
sketch13.addConstraint(Sketcher.Constraint("Vertical", 2, 2, 13, 2))
sketch13.addConstraint(Sketcher.Constraint("Equal", 3, 5))
sketch13.addConstraint(Sketcher.Constraint("Equal", 6, 8))
sketch13.addConstraint(Sketcher.Constraint("DistanceX", 1, 2, 1, 1, 40.0))
sketch13.addConstraint(Sketcher.Constraint("DistanceY", 0, 2, 0, 1, 11.0))
sketch13.addConstraint(Sketcher.Constraint("DistanceX", -1, 1, 0, 2, 644.0))
sketch13.addConstraint(Sketcher.Constraint("DistanceY", -1, 1, 0, 2, 211.0))
sketch13.addConstraint(Sketcher.Constraint("DistanceX", -1, 1, 4, 2, 549.0))
sketch13.addConstraint(Sketcher.Constraint("DistanceY", -1, 1, 8, 2, 322.0))
pocket9 = body.newObject("PartDesign::Pocket", "Pocket008")
pocket9.Profile = sketch13
pocket9.Length = 20
pocket9.Reversed = True

doc.recompute()
